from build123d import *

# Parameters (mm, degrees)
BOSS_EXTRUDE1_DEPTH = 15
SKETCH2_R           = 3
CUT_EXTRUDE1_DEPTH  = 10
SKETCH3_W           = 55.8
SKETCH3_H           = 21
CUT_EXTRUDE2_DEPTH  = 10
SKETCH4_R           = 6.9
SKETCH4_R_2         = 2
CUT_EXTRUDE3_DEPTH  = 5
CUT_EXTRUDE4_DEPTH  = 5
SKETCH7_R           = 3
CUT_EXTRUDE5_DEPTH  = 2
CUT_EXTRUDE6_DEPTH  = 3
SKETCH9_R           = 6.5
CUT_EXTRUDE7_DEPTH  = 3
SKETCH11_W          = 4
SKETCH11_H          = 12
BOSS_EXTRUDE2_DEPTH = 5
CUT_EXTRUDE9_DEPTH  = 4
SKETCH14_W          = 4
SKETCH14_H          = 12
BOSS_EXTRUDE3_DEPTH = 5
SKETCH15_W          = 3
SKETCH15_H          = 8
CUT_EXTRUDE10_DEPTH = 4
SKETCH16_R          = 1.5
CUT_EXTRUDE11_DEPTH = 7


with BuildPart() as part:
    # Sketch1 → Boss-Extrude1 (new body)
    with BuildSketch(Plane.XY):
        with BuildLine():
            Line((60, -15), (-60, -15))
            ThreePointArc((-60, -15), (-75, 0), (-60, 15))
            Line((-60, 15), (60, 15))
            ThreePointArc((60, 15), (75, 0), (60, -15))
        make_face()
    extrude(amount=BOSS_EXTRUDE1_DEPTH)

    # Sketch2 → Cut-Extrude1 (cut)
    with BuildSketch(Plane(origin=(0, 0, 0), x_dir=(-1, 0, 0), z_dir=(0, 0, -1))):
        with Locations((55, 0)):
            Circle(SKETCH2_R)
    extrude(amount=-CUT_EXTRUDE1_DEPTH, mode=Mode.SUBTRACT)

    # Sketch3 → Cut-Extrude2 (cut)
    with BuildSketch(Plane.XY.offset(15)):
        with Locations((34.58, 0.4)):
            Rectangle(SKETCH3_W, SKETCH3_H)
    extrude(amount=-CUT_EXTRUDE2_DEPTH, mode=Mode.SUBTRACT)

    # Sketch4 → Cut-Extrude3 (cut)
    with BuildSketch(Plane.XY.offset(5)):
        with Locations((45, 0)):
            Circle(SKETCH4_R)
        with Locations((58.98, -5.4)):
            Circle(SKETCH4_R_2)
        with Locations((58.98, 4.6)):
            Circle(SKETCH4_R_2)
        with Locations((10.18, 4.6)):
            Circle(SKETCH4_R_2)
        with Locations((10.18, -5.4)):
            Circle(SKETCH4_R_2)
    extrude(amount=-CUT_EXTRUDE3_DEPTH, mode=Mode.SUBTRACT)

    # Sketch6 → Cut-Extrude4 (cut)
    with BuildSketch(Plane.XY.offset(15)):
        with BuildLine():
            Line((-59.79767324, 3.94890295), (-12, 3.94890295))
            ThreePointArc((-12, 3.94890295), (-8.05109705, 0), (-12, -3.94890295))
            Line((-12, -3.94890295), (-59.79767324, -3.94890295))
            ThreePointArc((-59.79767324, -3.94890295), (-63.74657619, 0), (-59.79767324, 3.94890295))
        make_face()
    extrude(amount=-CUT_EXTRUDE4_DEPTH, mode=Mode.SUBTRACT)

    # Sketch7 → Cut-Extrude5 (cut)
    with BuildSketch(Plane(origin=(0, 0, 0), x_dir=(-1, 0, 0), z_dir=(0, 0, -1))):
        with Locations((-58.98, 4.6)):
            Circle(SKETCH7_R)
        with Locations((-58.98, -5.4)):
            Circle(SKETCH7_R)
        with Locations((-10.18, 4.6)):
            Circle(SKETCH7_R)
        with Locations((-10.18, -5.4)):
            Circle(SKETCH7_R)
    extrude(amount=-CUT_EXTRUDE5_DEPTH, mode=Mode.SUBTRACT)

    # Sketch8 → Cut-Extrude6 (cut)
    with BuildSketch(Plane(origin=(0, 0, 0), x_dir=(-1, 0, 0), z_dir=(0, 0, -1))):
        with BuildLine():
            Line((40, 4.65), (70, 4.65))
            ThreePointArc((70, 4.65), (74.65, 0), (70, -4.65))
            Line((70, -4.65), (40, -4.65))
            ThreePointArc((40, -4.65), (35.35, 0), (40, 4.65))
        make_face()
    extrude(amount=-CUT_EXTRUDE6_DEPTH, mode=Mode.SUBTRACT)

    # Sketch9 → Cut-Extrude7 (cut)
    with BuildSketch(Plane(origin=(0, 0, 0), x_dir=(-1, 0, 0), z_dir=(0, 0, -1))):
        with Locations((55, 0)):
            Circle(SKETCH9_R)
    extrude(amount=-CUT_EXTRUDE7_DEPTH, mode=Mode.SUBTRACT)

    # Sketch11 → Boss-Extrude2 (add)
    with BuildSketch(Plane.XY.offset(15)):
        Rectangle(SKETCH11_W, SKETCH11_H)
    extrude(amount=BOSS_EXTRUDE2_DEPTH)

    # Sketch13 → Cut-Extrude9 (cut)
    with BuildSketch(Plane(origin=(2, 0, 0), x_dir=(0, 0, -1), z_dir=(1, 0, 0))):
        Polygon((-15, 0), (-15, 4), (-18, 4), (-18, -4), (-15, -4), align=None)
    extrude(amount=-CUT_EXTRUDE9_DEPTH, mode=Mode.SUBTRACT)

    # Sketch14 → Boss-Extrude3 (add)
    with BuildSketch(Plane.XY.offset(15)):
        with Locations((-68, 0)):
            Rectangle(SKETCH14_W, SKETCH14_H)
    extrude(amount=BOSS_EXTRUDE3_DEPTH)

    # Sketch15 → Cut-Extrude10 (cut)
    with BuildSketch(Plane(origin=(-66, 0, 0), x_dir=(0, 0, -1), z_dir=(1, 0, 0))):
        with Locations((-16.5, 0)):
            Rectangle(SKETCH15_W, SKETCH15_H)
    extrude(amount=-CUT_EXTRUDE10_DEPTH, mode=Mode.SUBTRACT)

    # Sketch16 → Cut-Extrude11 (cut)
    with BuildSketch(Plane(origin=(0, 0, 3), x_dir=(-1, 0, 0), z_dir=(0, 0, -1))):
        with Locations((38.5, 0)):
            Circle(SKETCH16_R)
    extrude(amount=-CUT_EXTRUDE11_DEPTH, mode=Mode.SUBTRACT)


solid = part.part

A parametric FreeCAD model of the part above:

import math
import FreeCAD as App
import Part
import Sketcher
from FreeCAD import Vector
Q = App.Units.Quantity

doc = App.newDocument("Part")
body = doc.addObject("PartDesign::Body", "Body")

sketch1 = doc.addObject("Sketcher::SketchObject", "Sketch")
body.addObject(sketch1)
sketch1.AttachmentSupport = (doc.XY_Plane, [""])
sketch1.MapMode = "FlatFace"
sketch1.addGeometry(Part.LineSegment(Vector(-60, -15, 0), Vector(60, -15, 0)), False)
sketch1.addGeometry(Part.ArcOfCircle(Part.Circle(Vector(60, 0, 0), Vector(0, 0, 1), 15), math.radians(-90), math.radians(90)), False)
sketch1.addGeometry(Part.LineSegment(Vector(60, 15, 0), Vector(-60, 15, 0)), False)
sketch1.addGeometry(Part.ArcOfCircle(Part.Circle(Vector(-60, 0, 0), Vector(0, 0, 1), 15), math.radians(90), math.radians(270)), False)
sketch1.addConstraint(Sketcher.Constraint("Tangent", 0, 2, 1, 1))
sketch1.addConstraint(Sketcher.Constraint("Tangent", 1, 2, 2, 1))
sketch1.addConstraint(Sketcher.Constraint("Tangent", 2, 2, 3, 1))
sketch1.addConstraint(Sketcher.Constraint("Tangent", 3, 2, 0, 1))
sketch1.addConstraint(Sketcher.Constraint("Horizontal", 0))
sketch1.addConstraint(Sketcher.Constraint("Horizontal", 2))
sketch1.addConstraint(Sketcher.Constraint("Symmetric", 1, 3, 3, 3, -1, 1))
sketch1.addConstraint(Sketcher.Constraint("Radius", 1, Q("15 mm")))
sketch1.addConstraint(Sketcher.Constraint("DistanceX", 0, 1, 0, 2, Q("120 mm")))
pad1 = doc.addObject("PartDesign::Pad", "Pad")
body.addObject(pad1)
pad1.Profile = sketch1
pad1.Length = 15

sketch2 = doc.addObject("Sketcher::SketchObject", "Sketch001")
body.addObject(sketch2)
sketch2.AttachmentSupport = (doc.XY_Plane, [""])
sketch2.MapMode = "FlatFace"
sketch2.addGeometry(Part.Circle(Vector(-55, 0, 0), Vector(0, 0, 1), 3), False)
sketch2.addConstraint(Sketcher.Constraint("PointOnObject", 0, 3, -1))
sketch2.addConstraint(Sketcher.Constraint("Diameter", 0, Q("6 mm")))
sketch2.addConstraint(Sketcher.Constraint("DistanceX", 0, 3, -1, 1, Q("55 mm")))
pocket1 = doc.addObject("PartDesign::Pocket", "Pocket")
body.addObject(pocket1)
pocket1.Profile = sketch2
pocket1.Length = 10
pocket1.Reversed = True

sketch3 = doc.addObject("Sketcher::SketchObject", "Sketch002")
body.addObject(sketch3)
sketch3.AttachmentSupport = (doc.XY_Plane, [""])
sketch3.MapMode = "FlatFace"
sketch3.AttachmentOffset = App.Placement(Vector(0, 0, 15), App.Rotation())
sketch3.addGeometry(Part.LineSegment(Vector(7, 11, 0), Vector(7, -10, 0)), False)
sketch3.addGeometry(Part.LineSegment(Vector(7, -10, 0), Vector(62, -10, 0)), False)
sketch3.addGeometry(Part.LineSegment(Vector(62, -10, 0), Vector(62, 11, 0)), False)
sketch3.addGeometry(Part.LineSegment(Vector(62, 11, 0), Vector(7, 11, 0)), False)
sketch3.addConstraint(Sketcher.Constraint("Coincident", 0, 2, 1, 1))
sketch3.addConstraint(Sketcher.Constraint("Coincident", 1, 2, 2, 1))
sketch3.addConstraint(Sketcher.Constraint("Coincident", 2, 2, 3, 1))
sketch3.addConstraint(Sketcher.Constraint("Coincident", 3, 2, 0, 1))
sketch3.addConstraint(Sketcher.Constraint("Vertical", 0))
sketch3.addConstraint(Sketcher.Constraint("Horizontal", 1))
sketch3.addConstraint(Sketcher.Constraint("Vertical", 2))
sketch3.addConstraint(Sketcher.Constraint("Horizontal", 3))
sketch3.addConstraint(Sketcher.Constraint("DistanceY", 0, 2, 0, 1, Q("21 mm")))
sketch3.addConstraint(Sketcher.Constraint("DistanceX", 1, 1, 1, 2, Q("55.8 mm")))
sketch3.addConstraint(Sketcher.Constraint("DistanceY", 0, 2, -1, 1, Q("10.1 mm")))
sketch3.addConstraint(Sketcher.Constraint("DistanceX", -1, 1, 0, 2, Q("6.68 mm")))
pocket2 = doc.addObject("PartDesign::Pocket", "Pocket001")
body.addObject(pocket2)
pocket2.Profile = sketch3
pocket2.Length = 10

sketch4 = doc.addObject("Sketcher::SketchObject", "Sketch003")
body.addObject(sketch4)
sketch4.AttachmentSupport = (doc.XY_Plane, [""])
sketch4.MapMode = "FlatFace"
sketch4.AttachmentOffset = App.Placement(Vector(0, 0, 5), App.Rotation())
sketch4.addGeometry(Part.Circle(Vector(45, 0, 0), Vector(0, 0, 1), 6.9), False)
sketch4.addGeometry(Part.Circle(Vector(59, -5.4, 0), Vector(0, 0, 1), 2), False)
sketch4.addGeometry(Part.Circle(Vector(59, 4.6, 0), Vector(0, 0, 1), 2), False)
sketch4.addGeometry(Part.Circle(Vector(10.2, 4.6, 0), Vector(0, 0, 1), 2), False)
sketch4.addGeometry(Part.Circle(Vector(10.2, -5.4, 0), Vector(0, 0, 1), 2), False)
sketch4.addConstraint(Sketcher.Constraint("Equal", 1, 2))
sketch4.addConstraint(Sketcher.Constraint("Equal", 2, 3))
sketch4.addConstraint(Sketcher.Constraint("Equal", 3, 4))
sketch4.addConstraint(Sketcher.Constraint("PointOnObject", 0, 3, -1))
sketch4.addConstraint(Sketcher.Constraint("Horizontal", 2, 3, 3, 3))
sketch4.addConstraint(Sketcher.Constraint("Horizontal", 1, 3, 4, 3))
sketch4.addConstraint(Sketcher.Constraint("Vertical", 1, 3, 2, 3))
sketch4.addConstraint(Sketcher.Constraint("Vertical", 3, 3, 4, 3))
sketch4.addConstraint(Sketcher.Constraint("Diameter", 1, Q("4 mm")))
sketch4.addConstraint(Sketcher.Constraint("Diameter", 0, Q("13.8 mm")))
sketch4.addConstraint(Sketcher.Constraint("DistanceX", -1, 1, 0, 3, Q("45 mm")))
sketch4.addConstraint(Sketcher.Constraint("DistanceY", 1, 3, 2, 3, Q("10 mm")))
sketch4.addConstraint(Sketcher.Constraint("DistanceY", 1, 3, -1, 1, Q("5.4 mm")))
sketch4.addConstraint(Sketcher.Constraint("DistanceX", 3, 3, 2, 3, Q("48.8 mm")))
sketch4.addConstraint(Sketcher.Constraint("DistanceX", -1, 1, 1, 3, Q("58.98 mm")))
pocket3 = doc.addObject("PartDesign::Pocket", "Pocket002")
body.addObject(pocket3)
pocket3.Profile = sketch4
pocket3.Length = 5

sketch5 = doc.addObject("Sketcher::SketchObject", "Sketch004")
body.addObject(sketch5)
sketch5.AttachmentSupport = (doc.XY_Plane, [""])
sketch5.MapMode = "FlatFace"
sketch5.AttachmentOffset = App.Placement(Vector(0, 0, 15), App.Rotation())
sketch5.addGeometry(Part.LineSegment(Vector(-12, 3.9, 0), Vector(-59.8, 3.9, 0)), False)
sketch5.addGeometry(Part.ArcOfCircle(Part.Circle(Vector(-59.8, 0, 0), Vector(0, 0, 1), 3.9), math.radians(90), math.radians(270)), False)
sketch5.addGeometry(Part.LineSegment(Vector(-59.8, -3.9, 0), Vector(-12, -3.9, 0)), False)
sketch5.addGeometry(Part.ArcOfCircle(Part.Circle(Vector(-12, 0, 0), Vector(0, 0, 1), 3.9), math.radians(-90), math.radians(90)), False)
sketch5.addConstraint(Sketcher.Constraint("Tangent", 0, 2, 1, 1))
sketch5.addConstraint(Sketcher.Constraint("Tangent", 1, 2, 2, 1))
sketch5.addConstraint(Sketcher.Constraint("Tangent", 2, 2, 3, 1))
sketch5.addConstraint(Sketcher.Constraint("Tangent", 3, 2, 0, 1))
sketch5.addConstraint(Sketcher.Constraint("Horizontal", 0))
sketch5.addConstraint(Sketcher.Constraint("Horizontal", 2))
sketch5.addConstraint(Sketcher.Constraint("PointOnObject", 1, 3, -1))
sketch5.addConstraint(Sketcher.Constraint("DistanceX", 3, 3, -1, 1, Q("12 mm")))
sketch5.addConstraint(Sketcher.Constraint("Radius", 1, Q("3.948903 mm")))
sketch5.addConstraint(Sketcher.Constraint("DistanceX", 0, 2, 0, 1, Q("47.797673 mm")))
pocket4 = doc.addObject("PartDesign::Pocket", "Pocket003")
body.addObject(pocket4)
pocket4.Profile = sketch5
pocket4.Length = 5

sketch6 = doc.addObject("Sketcher::SketchObject", "Sketch005")
body.addObject(sketch6)
sketch6.AttachmentSupport = (doc.XY_Plane, [""])
sketch6.MapMode = "FlatFace"
sketch6.addGeometry(Part.Circle(Vector(59, 4.6, 0), Vector(0, 0, 1), 3), False)
sketch6.addGeometry(Part.Circle(Vector(59, -5.4, 0), Vector(0, 0, 1), 3), False)
sketch6.addGeometry(Part.Circle(Vector(10.2, 4.6, 0), Vector(0, 0, 1), 3), False)
sketch6.addGeometry(Part.Circle(Vector(10.2, -5.4, 0), Vector(0, 0, 1), 3), False)
sketch6.addConstraint(Sketcher.Constraint("Equal", 0, 1))
sketch6.addConstraint(Sketcher.Constraint("Equal", 1, 2))
sketch6.addConstraint(Sketcher.Constraint("Equal", 2, 3))
sketch6.addConstraint(Sketcher.Constraint("Horizontal", 0, 3, 2, 3))
sketch6.addConstraint(Sketcher.Constraint("Horizontal", 1, 3, 3, 3))
sketch6.addConstraint(Sketcher.Constraint("Vertical", 0, 3, 1, 3))
sketch6.addConstraint(Sketcher.Constraint("Vertical", 2, 3, 3, 3))
sketch6.addConstraint(Sketcher.Constraint("Diameter", 0, Q("6 mm")))
sketch6.addConstraint(Sketcher.Constraint("DistanceY", 1, 3, 0, 3, Q("10 mm")))
sketch6.addConstraint(Sketcher.Constraint("DistanceY", -1, 1, 0, 3, Q("4.6 mm")))
sketch6.addConstraint(Sketcher.Constraint("DistanceX", 2, 3, 0, 3, Q("48.8 mm")))
sketch6.addConstraint(Sketcher.Constraint("DistanceX", -1, 1, 0, 3, Q("58.98 mm")))
pocket5 = doc.addObject("PartDesign::Pocket", "Pocket004")
body.addObject(pocket5)
pocket5.Profile = sketch6
pocket5.Length = 2
pocket5.Reversed = True

sketch7 = doc.addObject("Sketcher::SketchObject", "Sketch006")
body.addObject(sketch7)
sketch7.AttachmentSupport = (doc.XY_Plane, [""])
sketch7.MapMode = "FlatFace"
sketch7.addGeometry(Part.LineSegment(Vector(-70, 4.7, 0), Vector(-40, 4.7, 0)), False)
sketch7.addGeometry(Part.ArcOfCircle(Part.Circle(Vector(-40, 0, 0), Vector(0, 0, 1), 4.7), math.radians(-90), math.radians(90)), False)
sketch7.addGeometry(Part.LineSegment(Vector(-40, -4.7, 0), Vector(-70, -4.7, 0)), False)
sketch7.addGeometry(Part.ArcOfCircle(Part.Circle(Vector(-70, 0, 0), Vector(0, 0, 1), 4.7), math.radians(90), math.radians(270)), False)
sketch7.addConstraint(Sketcher.Constraint("Tangent", 0, 2, 1, 2))
sketch7.addConstraint(Sketcher.Constraint("Tangent", 1, 1, 2, 1))
sketch7.addConstraint(Sketcher.Constraint("Tangent", 2, 2, 3, 2))
sketch7.addConstraint(Sketcher.Constraint("Tangent", 3, 1, 0, 1))
sketch7.addConstraint(Sketcher.Constraint("Horizontal", 0))
sketch7.addConstraint(Sketcher.Constraint("Horizontal", 2))
sketch7.addConstraint(Sketcher.Constraint("PointOnObject", 1, 3, -1))
sketch7.addConstraint(Sketcher.Constraint("DistanceX", 0, 1, 0, 2, Q("30 mm")))
sketch7.addConstraint(Sketcher.Constraint("Radius", 1, Q("4.65 mm")))
sketch7.addConstraint(Sketcher.Constraint("DistanceX", 1, 3, -1, 1, Q("40 mm")))
pocket6 = doc.addObject("PartDesign::Pocket", "Pocket005")
body.addObject(pocket6)
pocket6.Profile = sketch7
pocket6.Length = 3
pocket6.Reversed = True

sketch8 = doc.addObject("Sketcher::SketchObject", "Sketch007")
body.addObject(sketch8)
sketch8.AttachmentSupport = (doc.XY_Plane, [""])
sketch8.MapMode = "FlatFace"
sketch8.addGeometry(Part.Circle(Vector(-55, 0, 0), Vector(0, 0, 1), 6), False)
sketch8.addConstraint(Sketcher.Constraint("PointOnObject", 0, 3, -1))
sketch8.addConstraint(Sketcher.Constraint("Diameter", 0, Q("13 mm")))
sketch8.addConstraint(Sketcher.Constraint("DistanceX", 0, 3, -1, 1, Q("55 mm")))
pocket7 = doc.addObject("PartDesign::Pocket", "Pocket006")
body.addObject(pocket7)
pocket7.Profile = sketch8
pocket7.Length = 3
pocket7.Reversed = True

sketch9 = doc.addObject("Sketcher::SketchObject", "Sketch008")
body.addObject(sketch9)
sketch9.AttachmentSupport = (doc.XY_Plane, [""])
sketch9.MapMode = "FlatFace"
sketch9.AttachmentOffset = App.Placement(Vector(0, 0, 15), App.Rotation())
sketch9.addGeometry(Part.LineSegment(Vector(-2, 6, 0), Vector(-2, -6, 0)), False)
sketch9.addGeometry(Part.LineSegment(Vector(-2, -6, 0), Vector(2, -6, 0)), False)
sketch9.addGeometry(Part.LineSegment(Vector(2, -6, 0), Vector(2, 6, 0)), False)
sketch9.addGeometry(Part.LineSegment(Vector(2, 6, 0), Vector(-2, 6, 0)), False)
sketch9.addConstraint(Sketcher.Constraint("Coincident", 0, 2, 1, 1))
sketch9.addConstraint(Sketcher.Constraint("Coincident", 1, 2, 2, 1))
sketch9.addConstraint(Sketcher.Constraint("Coincident", 2, 2, 3, 1))
sketch9.addConstraint(Sketcher.Constraint("Coincident", 3, 2, 0, 1))
sketch9.addConstraint(Sketcher.Constraint("Vertical", 0))
sketch9.addConstraint(Sketcher.Constraint("Horizontal", 1))
sketch9.addConstraint(Sketcher.Constraint("Vertical", 2))
sketch9.addConstraint(Sketcher.Constraint("Horizontal", 3))
sketch9.addConstraint(Sketcher.Constraint("Symmetric", 0, 2, 2, 2, -1, 1))
sketch9.addConstraint(Sketcher.Constraint("DistanceX", 1, 1, 1, 2, Q("4 mm")))
sketch9.addConstraint(Sketcher.Constraint("DistanceY", 0, 2, 0, 1, Q("12 mm")))
pad2 = doc.addObject("PartDesign::Pad", "Pad001")
body.addObject(pad2)
pad2.Profile = sketch9
pad2.Length = 5

sketch10 = doc.addObject("Sketcher::SketchObject", "Sketch009")
body.addObject(sketch10)
sketch10.AttachmentSupport = (doc.YZ_Plane, [""])
sketch10.MapMode = "FlatFace"
sketch10.AttachmentOffset = App.Placement(Vector(0, 0, 2), App.Rotation())
sketch10.addGeometry(Part.LineSegment(Vector(4, 15, 0), Vector(4, 18, 0)), False)
sketch10.addGeometry(Part.LineSegment(Vector(4, 18, 0), Vector(-4, 18, 0)), False)
sketch10.addGeometry(Part.LineSegment(Vector(-4, 18, 0), Vector(-4, 15, 0)), False)
sketch10.addGeometry(Part.LineSegment(Vector(-4, 15, 0), Vector(4, 15, 0)), False)
sketch10.addConstraint(Sketcher.Constraint("Coincident", 0, 2, 1, 1))
sketch10.addConstraint(Sketcher.Constraint("Coincident", 1, 2, 2, 1))
sketch10.addConstraint(Sketcher.Constraint("Coincident", 2, 2, 3, 1))
sketch10.addConstraint(Sketcher.Constraint("Coincident", 3, 2, 0, 1))
sketch10.addConstraint(Sketcher.Constraint("Vertical", 0))
sketch10.addConstraint(Sketcher.Constraint("Horizontal", 1))
sketch10.addConstraint(Sketcher.Constraint("Vertical", 2))
sketch10.addConstraint(Sketcher.Constraint("Horizontal", 3))
sketch10.addConstraint(Sketcher.Constraint("DistanceX", 1, 2, 1, 1, Q("8 mm")))
sketch10.addConstraint(Sketcher.Constraint("DistanceY", 0, 1, 0, 2, Q("3 mm")))
sketch10.addConstraint(Sketcher.Constraint("DistanceX", -1, 1, 0, 2, Q("4 mm")))
sketch10.addConstraint(Sketcher.Constraint("DistanceY", -1, 1, 0, 2, Q("18 mm")))
pocket8 = doc.addObject("PartDesign::Pocket", "Pocket007")
body.addObject(pocket8)
pocket8.Profile = sketch10
pocket8.Length = 4

sketch11 = doc.addObject("Sketcher::SketchObject", "Sketch010")
body.addObject(sketch11)
sketch11.AttachmentSupport = (doc.XY_Plane, [""])
sketch11.MapMode = "FlatFace"
sketch11.AttachmentOffset = App.Placement(Vector(0, 0, 15), App.Rotation())
sketch11.addGeometry(Part.LineSegment(Vector(-70, 6, 0), Vector(-70, -6, 0)), False)
sketch11.addGeometry(Part.LineSegment(Vector(-70, -6, 0), Vector(-66, -6, 0)), False)
sketch11.addGeometry(Part.LineSegment(Vector(-66, -6, 0), Vector(-66, 6, 0)), False)
sketch11.addGeometry(Part.LineSegment(Vector(-66, 6, 0), Vector(-70, 6, 0)), False)
sketch11.addConstraint(Sketcher.Constraint("Coincident", 0, 2, 1, 1))
sketch11.addConstraint(Sketcher.Constraint("Coincident", 1, 2, 2, 1))
sketch11.addConstraint(Sketcher.Constraint("Coincident", 2, 2, 3, 1))
sketch11.addConstraint(Sketcher.Constraint("Coincident", 3, 2, 0, 1))
sketch11.addConstraint(Sketcher.Constraint("Vertical", 0))
sketch11.addConstraint(Sketcher.Constraint("Horizontal", 1))
sketch11.addConstraint(Sketcher.Constraint("Vertical", 2))
sketch11.addConstraint(Sketcher.Constraint("Horizontal", 3))
sketch11.addConstraint(Sketcher.Constraint("DistanceX", 1, 1, 1, 2, Q("4 mm")))
sketch11.addConstraint(Sketcher.Constraint("DistanceY", 0, 2, 0, 1, Q("12 mm")))
sketch11.addConstraint(Sketcher.Constraint("DistanceX", 0, 2, -1, 1, Q("70 mm")))
sketch11.addConstraint(Sketcher.Constraint("DistanceY", 0, 2, -1, 1, Q("6 mm")))
pad3 = doc.addObject("PartDesign::Pad", "Pad002")
body.addObject(pad3)
pad3.Profile = sketch11
pad3.Length = 5

sketch12 = doc.addObject("Sketcher::SketchObject", "Sketch011")
body.addObject(sketch12)
sketch12.AttachmentSupport = (doc.YZ_Plane, [""])
sketch12.MapMode = "FlatFace"
sketch12.AttachmentOffset = App.Placement(Vector(0, 0, -66), App.Rotation())
sketch12.addGeometry(Part.LineSegment(Vector(4, 18, 0), Vector(-4, 18, 0)), False)
sketch12.addGeometry(Part.LineSegment(Vector(-4, 18, 0), Vector(-4, 15, 0)), False)
sketch12.addGeometry(Part.LineSegment(Vector(-4, 15, 0), Vector(4, 15, 0)), False)
sketch12.addGeometry(Part.LineSegment(Vector(4, 15, 0), Vector(4, 18, 0)), False)
sketch12.addConstraint(Sketcher.Constraint("Coincident", 0, 2, 1, 1))
sketch12.addConstraint(Sketcher.Constraint("Coincident", 1, 2, 2, 1))
sketch12.addConstraint(Sketcher.Constraint("Coincident", 2, 2, 3, 1))
sketch12.addConstraint(Sketcher.Constraint("Coincident", 3, 2, 0, 1))
sketch12.addConstraint(Sketcher.Constraint("Horizontal", 0))
sketch12.addConstraint(Sketcher.Constraint("Vertical", 1))
sketch12.addConstraint(Sketcher.Constraint("Horizontal", 2))
sketch12.addConstraint(Sketcher.Constraint("Vertical", 3))
sketch12.addConstraint(Sketcher.Constraint("DistanceX", 0, 2, 0, 1, Q("8 mm")))
sketch12.addConstraint(Sketcher.Constraint("DistanceY", 1, 2, 1, 1, Q("3 mm")))
sketch12.addConstraint(Sketcher.Constraint("DistanceX", 0, 2, -1, 1, Q("4 mm")))
sketch12.addConstraint(Sketcher.Constraint("DistanceY", -1, 1, 0, 2, Q("18 mm")))
pocket9 = doc.addObject("PartDesign::Pocket", "Pocket008")
body.addObject(pocket9)
pocket9.Profile = sketch12
pocket9.Length = 4

sketch13 = doc.addObject("Sketcher::SketchObject", "Sketch012")
body.addObject(sketch13)
sketch13.AttachmentSupport = (doc.XY_Plane, [""])
sketch13.MapMode = "FlatFace"
sketch13.AttachmentOffset = App.Placement(Vector(0, 0, 3), App.Rotation())
sketch13.addGeometry(Part.Circle(Vector(-38.5, 0, 0), Vector(0, 0, 1), 1.5), False)
sketch13.addConstraint(Sketcher.Constraint("PointOnObject", 0, 3, -1))
sketch13.addConstraint(Sketcher.Constraint("Diameter", 0, Q("3 mm")))
sketch13.addConstraint(Sketcher.Constraint("DistanceX", 0, 3, -1, 1, Q("38.5 mm")))
pocket10 = doc.addObject("PartDesign::Pocket", "Pocket009")
body.addObject(pocket10)
pocket10.Profile = sketch13
pocket10.Length = 7
pocket10.Reversed = True

doc.recompute()
